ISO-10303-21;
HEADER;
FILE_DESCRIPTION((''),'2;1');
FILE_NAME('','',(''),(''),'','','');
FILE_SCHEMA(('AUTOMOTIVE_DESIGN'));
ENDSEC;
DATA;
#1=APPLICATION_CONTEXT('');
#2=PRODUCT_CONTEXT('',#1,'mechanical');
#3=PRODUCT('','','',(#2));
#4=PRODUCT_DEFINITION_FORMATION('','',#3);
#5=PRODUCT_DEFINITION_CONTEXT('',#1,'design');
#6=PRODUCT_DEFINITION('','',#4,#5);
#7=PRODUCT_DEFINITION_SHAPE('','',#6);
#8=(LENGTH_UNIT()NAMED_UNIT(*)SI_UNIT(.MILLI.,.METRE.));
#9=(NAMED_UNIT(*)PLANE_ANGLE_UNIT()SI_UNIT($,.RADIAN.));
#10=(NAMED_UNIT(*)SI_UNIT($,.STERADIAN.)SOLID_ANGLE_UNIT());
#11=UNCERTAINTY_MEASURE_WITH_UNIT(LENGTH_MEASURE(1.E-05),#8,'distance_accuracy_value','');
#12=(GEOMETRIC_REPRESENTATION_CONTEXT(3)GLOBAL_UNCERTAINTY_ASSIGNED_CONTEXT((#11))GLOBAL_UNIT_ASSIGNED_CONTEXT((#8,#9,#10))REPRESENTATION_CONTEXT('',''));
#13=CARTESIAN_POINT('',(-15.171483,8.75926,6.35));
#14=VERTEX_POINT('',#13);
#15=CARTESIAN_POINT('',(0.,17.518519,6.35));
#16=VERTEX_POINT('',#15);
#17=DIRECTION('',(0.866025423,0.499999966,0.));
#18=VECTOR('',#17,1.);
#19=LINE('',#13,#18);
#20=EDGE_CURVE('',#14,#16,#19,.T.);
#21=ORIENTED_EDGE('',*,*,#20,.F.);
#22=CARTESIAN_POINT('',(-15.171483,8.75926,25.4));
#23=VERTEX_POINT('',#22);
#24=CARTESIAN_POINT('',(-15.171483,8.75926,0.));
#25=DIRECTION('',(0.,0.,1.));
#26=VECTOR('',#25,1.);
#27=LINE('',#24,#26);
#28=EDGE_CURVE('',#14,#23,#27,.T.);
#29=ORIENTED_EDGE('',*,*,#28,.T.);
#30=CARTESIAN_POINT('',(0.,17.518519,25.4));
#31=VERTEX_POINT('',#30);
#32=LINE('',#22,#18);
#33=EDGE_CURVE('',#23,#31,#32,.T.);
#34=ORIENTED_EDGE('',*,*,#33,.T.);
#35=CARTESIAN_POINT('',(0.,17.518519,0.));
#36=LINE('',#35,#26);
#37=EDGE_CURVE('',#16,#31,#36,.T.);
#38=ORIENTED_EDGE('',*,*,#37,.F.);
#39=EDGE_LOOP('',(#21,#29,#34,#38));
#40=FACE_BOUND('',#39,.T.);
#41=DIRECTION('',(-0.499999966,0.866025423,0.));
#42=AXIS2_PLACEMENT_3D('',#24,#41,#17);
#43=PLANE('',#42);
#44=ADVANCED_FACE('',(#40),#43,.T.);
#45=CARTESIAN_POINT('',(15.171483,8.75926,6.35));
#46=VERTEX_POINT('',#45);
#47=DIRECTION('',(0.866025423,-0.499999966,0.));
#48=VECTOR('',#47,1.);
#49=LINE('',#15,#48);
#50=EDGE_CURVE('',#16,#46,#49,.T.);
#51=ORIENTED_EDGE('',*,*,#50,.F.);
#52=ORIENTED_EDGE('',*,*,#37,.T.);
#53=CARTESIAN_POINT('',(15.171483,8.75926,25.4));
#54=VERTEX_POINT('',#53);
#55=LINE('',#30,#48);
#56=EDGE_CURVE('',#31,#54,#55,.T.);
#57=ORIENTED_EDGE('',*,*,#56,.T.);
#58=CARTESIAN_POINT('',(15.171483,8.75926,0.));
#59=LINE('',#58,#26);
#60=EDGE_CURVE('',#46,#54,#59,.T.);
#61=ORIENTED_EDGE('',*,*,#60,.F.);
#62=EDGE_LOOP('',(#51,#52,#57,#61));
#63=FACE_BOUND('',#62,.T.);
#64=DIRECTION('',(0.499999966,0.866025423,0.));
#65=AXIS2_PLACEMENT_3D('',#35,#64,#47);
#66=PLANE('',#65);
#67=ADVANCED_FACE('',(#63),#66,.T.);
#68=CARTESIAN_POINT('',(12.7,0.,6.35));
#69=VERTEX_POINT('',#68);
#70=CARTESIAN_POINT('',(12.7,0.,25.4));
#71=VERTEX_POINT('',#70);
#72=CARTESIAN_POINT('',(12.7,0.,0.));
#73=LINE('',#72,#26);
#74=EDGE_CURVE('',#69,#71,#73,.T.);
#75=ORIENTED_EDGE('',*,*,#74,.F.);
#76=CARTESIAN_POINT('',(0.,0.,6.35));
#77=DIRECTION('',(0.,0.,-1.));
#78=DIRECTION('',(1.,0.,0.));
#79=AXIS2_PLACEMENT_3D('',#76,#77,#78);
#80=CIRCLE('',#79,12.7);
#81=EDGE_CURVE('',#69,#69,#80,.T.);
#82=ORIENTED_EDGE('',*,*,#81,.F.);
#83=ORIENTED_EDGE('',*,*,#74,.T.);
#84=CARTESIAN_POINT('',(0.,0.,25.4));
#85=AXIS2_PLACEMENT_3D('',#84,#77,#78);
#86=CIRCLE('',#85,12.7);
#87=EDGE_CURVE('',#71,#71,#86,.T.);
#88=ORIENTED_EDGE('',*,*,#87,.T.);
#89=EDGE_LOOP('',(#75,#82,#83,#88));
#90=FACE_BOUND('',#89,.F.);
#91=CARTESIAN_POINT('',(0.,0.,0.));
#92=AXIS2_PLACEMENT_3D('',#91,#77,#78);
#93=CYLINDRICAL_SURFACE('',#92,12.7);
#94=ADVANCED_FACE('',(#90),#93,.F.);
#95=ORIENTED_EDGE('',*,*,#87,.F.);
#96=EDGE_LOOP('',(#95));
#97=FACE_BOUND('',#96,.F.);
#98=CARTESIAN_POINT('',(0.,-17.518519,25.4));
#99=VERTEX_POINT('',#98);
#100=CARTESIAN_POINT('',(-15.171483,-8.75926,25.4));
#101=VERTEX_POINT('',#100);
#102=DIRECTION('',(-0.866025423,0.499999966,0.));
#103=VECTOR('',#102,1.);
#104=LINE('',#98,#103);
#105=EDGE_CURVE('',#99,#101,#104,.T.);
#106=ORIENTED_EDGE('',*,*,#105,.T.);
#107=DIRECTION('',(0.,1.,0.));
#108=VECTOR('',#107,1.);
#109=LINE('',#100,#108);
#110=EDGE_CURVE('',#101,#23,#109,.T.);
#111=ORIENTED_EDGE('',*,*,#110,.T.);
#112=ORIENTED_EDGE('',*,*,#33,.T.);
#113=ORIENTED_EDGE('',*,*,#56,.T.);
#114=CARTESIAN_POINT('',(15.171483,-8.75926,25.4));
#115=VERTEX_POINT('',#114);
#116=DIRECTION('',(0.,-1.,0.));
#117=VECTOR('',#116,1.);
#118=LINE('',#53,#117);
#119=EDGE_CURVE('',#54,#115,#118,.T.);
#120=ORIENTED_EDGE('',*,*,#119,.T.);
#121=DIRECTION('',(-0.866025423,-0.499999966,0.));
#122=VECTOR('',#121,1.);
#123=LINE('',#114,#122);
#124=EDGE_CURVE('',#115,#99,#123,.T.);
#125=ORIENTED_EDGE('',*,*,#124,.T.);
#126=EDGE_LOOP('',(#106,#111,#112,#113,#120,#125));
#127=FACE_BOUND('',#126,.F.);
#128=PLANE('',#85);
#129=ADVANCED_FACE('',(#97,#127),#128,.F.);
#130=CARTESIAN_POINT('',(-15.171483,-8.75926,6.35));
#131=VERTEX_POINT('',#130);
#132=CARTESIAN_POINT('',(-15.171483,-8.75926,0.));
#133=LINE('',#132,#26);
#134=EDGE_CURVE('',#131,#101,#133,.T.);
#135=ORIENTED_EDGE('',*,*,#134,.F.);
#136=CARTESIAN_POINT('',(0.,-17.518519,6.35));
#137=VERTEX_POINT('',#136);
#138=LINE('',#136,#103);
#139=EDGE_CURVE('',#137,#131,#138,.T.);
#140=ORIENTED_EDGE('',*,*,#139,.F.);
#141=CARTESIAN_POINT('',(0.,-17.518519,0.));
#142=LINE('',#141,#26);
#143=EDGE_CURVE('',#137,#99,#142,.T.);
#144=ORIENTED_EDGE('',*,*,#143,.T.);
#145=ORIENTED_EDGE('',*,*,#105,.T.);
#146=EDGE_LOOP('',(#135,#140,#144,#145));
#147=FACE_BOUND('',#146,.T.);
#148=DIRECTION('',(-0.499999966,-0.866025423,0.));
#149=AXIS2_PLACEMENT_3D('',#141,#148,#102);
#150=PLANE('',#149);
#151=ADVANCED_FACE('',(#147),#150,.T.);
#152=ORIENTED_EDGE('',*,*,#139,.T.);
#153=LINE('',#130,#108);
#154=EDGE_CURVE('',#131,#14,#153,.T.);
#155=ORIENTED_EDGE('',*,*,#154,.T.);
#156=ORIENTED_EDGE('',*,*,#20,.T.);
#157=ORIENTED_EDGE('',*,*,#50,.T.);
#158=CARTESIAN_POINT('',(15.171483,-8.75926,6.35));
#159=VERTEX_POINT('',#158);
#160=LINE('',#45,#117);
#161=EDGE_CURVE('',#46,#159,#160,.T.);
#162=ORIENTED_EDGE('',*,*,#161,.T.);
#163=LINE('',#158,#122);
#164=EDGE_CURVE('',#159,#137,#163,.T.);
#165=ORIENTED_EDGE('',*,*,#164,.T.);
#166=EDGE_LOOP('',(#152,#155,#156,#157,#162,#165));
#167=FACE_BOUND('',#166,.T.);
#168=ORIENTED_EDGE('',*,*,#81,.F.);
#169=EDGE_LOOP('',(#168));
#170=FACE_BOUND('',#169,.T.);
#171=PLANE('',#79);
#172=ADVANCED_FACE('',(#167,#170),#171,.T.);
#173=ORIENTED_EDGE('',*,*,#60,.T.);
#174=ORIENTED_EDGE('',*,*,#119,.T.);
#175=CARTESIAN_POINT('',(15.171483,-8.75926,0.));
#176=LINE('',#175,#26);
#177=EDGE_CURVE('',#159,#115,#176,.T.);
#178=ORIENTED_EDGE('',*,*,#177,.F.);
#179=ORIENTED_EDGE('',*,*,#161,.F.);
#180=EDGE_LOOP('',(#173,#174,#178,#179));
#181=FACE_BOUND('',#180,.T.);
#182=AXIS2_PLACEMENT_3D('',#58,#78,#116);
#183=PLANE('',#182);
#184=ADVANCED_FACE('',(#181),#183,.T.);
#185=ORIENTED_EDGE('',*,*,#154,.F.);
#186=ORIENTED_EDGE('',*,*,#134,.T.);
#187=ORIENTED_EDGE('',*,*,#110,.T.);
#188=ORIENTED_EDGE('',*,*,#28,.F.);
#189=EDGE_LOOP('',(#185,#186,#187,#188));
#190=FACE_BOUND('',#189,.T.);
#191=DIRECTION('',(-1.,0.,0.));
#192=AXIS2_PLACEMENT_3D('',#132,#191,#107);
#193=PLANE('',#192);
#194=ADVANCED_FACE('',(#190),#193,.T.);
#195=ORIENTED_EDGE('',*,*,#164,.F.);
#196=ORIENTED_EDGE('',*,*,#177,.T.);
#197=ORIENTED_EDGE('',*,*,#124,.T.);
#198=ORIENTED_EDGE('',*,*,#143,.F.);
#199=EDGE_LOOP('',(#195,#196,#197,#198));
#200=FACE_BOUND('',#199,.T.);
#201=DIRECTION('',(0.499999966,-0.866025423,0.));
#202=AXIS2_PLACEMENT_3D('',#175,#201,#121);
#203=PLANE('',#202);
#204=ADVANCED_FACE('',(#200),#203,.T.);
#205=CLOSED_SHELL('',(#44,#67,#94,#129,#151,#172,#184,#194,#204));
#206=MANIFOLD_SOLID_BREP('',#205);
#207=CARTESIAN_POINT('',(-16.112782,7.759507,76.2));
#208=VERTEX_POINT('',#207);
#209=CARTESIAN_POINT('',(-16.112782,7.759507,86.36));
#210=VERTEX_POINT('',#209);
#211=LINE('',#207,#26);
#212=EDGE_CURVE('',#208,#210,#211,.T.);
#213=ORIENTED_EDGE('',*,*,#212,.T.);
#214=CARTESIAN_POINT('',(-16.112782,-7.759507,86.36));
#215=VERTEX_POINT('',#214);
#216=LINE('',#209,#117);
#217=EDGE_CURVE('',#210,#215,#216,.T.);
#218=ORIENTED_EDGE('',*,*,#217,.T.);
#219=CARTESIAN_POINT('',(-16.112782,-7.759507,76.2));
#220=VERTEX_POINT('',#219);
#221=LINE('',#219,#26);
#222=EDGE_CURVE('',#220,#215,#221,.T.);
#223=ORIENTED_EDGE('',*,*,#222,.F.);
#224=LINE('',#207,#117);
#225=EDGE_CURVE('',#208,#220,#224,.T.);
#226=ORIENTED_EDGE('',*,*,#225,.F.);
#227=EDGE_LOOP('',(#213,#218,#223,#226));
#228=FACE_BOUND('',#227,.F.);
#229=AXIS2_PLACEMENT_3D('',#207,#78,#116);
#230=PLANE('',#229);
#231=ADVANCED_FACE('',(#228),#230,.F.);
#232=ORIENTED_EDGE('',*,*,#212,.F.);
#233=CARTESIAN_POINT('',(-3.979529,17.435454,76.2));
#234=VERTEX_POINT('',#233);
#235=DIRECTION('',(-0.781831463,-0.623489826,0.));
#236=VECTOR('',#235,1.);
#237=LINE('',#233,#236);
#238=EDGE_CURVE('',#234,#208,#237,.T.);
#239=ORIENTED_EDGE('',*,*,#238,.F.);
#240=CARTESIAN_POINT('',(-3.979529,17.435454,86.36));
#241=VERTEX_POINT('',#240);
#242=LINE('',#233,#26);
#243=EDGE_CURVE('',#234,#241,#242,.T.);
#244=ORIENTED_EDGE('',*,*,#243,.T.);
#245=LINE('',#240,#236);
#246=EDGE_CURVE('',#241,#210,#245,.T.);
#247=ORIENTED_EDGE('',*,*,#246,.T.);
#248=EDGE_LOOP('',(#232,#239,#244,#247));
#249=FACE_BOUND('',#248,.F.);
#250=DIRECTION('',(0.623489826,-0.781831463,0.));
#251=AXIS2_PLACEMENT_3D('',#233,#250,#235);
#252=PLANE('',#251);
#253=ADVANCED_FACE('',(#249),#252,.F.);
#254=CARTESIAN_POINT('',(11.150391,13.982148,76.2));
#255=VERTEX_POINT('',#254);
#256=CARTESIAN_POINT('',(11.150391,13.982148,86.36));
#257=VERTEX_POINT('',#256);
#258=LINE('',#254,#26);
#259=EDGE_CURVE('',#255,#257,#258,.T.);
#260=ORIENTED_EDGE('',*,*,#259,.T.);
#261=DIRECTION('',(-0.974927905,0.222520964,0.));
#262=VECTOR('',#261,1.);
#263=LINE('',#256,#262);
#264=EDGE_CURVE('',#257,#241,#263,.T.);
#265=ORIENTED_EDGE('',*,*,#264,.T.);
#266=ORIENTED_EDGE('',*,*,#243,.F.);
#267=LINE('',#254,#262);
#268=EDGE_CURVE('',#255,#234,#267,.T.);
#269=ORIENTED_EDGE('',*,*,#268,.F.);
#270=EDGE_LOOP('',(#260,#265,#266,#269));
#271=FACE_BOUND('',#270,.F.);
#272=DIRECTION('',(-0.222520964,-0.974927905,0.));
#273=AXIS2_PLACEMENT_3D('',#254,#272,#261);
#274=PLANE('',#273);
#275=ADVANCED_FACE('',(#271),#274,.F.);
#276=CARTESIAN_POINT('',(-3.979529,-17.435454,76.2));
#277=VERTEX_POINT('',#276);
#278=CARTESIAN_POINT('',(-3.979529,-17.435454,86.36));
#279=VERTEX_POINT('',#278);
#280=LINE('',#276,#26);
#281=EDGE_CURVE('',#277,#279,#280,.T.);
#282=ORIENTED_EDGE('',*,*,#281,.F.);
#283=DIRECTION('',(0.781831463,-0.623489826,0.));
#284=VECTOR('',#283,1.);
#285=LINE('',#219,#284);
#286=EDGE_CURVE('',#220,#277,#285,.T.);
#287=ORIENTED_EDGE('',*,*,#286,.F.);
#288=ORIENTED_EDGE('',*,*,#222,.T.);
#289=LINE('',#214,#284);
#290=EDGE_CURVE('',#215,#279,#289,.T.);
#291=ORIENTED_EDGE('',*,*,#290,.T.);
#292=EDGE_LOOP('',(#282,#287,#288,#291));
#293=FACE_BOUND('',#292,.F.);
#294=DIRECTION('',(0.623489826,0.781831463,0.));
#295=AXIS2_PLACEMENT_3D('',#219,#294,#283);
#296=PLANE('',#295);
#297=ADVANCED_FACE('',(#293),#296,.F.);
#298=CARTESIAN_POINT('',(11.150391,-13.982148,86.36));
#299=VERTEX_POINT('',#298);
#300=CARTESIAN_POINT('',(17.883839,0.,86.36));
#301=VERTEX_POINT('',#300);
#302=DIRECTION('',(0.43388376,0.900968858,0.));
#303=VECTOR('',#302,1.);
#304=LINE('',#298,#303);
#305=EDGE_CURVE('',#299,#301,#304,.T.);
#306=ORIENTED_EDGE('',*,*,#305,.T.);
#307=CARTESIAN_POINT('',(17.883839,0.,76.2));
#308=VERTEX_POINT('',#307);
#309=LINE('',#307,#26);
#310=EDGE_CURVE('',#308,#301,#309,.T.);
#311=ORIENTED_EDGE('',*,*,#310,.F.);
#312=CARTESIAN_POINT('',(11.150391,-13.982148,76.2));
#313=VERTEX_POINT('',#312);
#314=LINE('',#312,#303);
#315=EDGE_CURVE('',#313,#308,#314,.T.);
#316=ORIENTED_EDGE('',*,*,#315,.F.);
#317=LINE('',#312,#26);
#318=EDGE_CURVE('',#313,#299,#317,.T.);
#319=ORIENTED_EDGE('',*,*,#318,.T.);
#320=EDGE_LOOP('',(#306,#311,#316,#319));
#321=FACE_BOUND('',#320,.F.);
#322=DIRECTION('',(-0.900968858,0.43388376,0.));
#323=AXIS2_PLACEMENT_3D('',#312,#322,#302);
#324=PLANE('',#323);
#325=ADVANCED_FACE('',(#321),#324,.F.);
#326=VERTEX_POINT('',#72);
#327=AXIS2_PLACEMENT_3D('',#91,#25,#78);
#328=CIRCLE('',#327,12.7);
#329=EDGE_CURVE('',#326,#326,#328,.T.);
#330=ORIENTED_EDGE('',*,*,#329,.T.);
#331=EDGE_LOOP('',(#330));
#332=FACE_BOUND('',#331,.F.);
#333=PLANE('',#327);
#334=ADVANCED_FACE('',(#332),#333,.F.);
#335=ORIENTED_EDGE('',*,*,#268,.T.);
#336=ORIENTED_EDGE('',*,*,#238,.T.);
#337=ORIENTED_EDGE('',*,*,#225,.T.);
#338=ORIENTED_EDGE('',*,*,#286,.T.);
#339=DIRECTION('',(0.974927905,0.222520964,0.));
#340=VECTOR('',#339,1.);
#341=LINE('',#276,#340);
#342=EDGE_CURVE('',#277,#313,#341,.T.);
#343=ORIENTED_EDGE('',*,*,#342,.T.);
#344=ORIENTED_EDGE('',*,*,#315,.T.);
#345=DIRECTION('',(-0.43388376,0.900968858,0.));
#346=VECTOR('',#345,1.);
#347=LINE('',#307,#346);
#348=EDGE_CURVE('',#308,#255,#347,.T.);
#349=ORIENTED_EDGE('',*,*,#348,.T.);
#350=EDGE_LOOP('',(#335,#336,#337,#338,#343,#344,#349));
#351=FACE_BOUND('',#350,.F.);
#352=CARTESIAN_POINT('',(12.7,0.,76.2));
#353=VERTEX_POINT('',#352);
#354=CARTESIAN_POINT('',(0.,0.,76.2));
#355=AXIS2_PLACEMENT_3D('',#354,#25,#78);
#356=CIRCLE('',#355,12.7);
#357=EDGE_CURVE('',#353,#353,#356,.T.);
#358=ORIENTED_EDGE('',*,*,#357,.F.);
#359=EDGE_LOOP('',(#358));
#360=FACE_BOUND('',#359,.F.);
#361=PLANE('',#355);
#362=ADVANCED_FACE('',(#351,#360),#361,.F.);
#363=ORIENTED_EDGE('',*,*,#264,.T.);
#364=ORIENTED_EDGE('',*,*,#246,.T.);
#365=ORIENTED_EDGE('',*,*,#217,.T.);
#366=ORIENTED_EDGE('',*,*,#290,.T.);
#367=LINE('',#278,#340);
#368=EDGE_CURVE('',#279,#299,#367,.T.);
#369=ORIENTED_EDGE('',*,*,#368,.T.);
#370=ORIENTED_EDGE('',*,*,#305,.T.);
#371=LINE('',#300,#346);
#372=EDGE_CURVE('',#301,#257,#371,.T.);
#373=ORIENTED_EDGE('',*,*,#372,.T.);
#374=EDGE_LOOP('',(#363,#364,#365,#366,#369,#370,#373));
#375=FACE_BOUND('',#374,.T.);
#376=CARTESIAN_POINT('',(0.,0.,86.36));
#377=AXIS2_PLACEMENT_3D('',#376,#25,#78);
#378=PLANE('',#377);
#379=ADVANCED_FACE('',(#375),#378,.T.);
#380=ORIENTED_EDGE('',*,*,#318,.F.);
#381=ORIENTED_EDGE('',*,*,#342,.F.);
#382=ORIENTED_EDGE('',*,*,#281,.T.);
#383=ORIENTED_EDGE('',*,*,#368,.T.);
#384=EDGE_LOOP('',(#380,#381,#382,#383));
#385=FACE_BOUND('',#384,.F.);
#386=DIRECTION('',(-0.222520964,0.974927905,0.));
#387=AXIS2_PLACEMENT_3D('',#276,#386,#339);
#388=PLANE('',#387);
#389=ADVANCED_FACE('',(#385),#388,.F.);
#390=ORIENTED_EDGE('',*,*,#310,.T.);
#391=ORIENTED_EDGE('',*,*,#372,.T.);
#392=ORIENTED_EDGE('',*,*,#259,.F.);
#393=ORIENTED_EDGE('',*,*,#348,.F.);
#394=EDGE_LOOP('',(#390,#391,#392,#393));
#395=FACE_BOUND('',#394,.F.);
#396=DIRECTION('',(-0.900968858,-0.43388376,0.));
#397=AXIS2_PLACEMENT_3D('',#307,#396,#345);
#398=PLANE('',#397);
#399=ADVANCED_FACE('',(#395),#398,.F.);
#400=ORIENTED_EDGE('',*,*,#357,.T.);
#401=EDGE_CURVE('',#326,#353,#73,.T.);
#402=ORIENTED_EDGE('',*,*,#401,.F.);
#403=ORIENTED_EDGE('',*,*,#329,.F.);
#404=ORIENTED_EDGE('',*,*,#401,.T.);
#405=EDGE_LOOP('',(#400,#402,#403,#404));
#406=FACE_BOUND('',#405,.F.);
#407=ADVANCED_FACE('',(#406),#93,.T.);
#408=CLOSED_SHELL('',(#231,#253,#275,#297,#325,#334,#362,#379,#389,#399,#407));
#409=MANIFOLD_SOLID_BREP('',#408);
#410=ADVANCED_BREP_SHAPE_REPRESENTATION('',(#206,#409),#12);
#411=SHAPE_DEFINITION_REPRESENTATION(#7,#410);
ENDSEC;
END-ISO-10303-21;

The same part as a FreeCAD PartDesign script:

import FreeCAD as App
import Part
import Sketcher
from FreeCAD import Vector
Q = App.Units.Quantity

doc = App.newDocument("Part")
body = doc.addObject("PartDesign::Body", "Body")

sketch1 = doc.addObject("Sketcher::SketchObject", "Sketch")
body.addObject(sketch1)
sketch1.AttachmentSupport = (doc.XY_Plane, [""])
sketch1.MapMode = "FlatFace"
sketch1.addGeometry(Part.Circle(Vector(0, 0, 0), Vector(0, 0, 1), 13), False)
sketch1.addConstraint([
    Sketcher.Constraint("Coincident", 0, 3, -1, 1),
    Sketcher.Constraint("Diameter", 0, Q("1 in")),
])
pad1 = doc.addObject("PartDesign::Pad", "Pad")
body.addObject(pad1)
pad1.Profile = sketch1
pad1.Length = Q("3 in")

sketch2 = doc.addObject("Sketcher::SketchObject", "Sketch001")
body.addObject(sketch2)
sketch2.AttachmentSupport = (doc.XY_Plane, [""])
sketch2.MapMode = "FlatFace"
sketch2.AttachmentOffset = App.Placement(Vector(0, 0, 3 * 25.4), App.Rotation())
sketch2.addGeometry([
    Part.LineSegment(Vector(-16, 8, 0), Vector(-16, -8, 0)),
    Part.LineSegment(Vector(-16, -8, 0), Vector(-4, -17, 0)),
    Part.LineSegment(Vector(-4, -17, 0), Vector(11, -14, 0)),
    Part.LineSegment(Vector(11, -14, 0), Vector(18, 0, 0)),
    Part.LineSegment(Vector(18, 0, 0), Vector(11, 14, 0)),
    Part.LineSegment(Vector(11, 14, 0), Vector(-4, 17, 0)),
    Part.LineSegment(Vector(-4, 17, 0), Vector(-16, 8, 0)),
], False)
sketch2.addConstraint([
    Sketcher.Constraint("Coincident", 0, 2, 1, 1),
    Sketcher.Constraint("Coincident", 1, 2, 2, 1),
    Sketcher.Constraint("Coincident", 2, 2, 3, 1),
    Sketcher.Constraint("Coincident", 3, 2, 4, 1),
    Sketcher.Constraint("Coincident", 4, 2, 5, 1),
    Sketcher.Constraint("Coincident", 5, 2, 6, 1),
    Sketcher.Constraint("Coincident", 6, 2, 0, 1),
    Sketcher.Constraint("Vertical", 0),
    Sketcher.Constraint("Symmetric", 2, 2, 4, 2, -1),
    Sketcher.Constraint("Symmetric", 1, 2, 5, 2, -1),
    Sketcher.Constraint("PointOnObject", 3, 2, -1),
    Sketcher.Constraint("Equal", 1, 2),
    Sketcher.Constraint("Equal", 2, 3),
    Sketcher.Constraint("Equal", 5, 6),
    Sketcher.Constraint("DistanceY", 0, 2, 0, 1, Q("15.519014 mm")),
    Sketcher.Constraint("DistanceX", 0, 2, -1, 1, Q("16.112782 mm")),
    Sketcher.Constraint("DistanceX", 1, 2, -1, 1, Q("3.979529 mm")),
    Sketcher.Constraint("DistanceX", -1, 1, 2, 2, Q("11.150391 mm")),
    Sketcher.Constraint("DistanceX", -1, 1, 3, 2, Q("17.883839 mm")),
])
pad2 = doc.addObject("PartDesign::Pad", "Pad001")
body.addObject(pad2)
pad2.Profile = sketch2
pad2.Length = Q("0.4 in")
body2 = doc.addObject("PartDesign::Body", "Body001")

sketch3 = doc.addObject("Sketcher::SketchObject", "Sketch002")
body2.addObject(sketch3)
sketch3.AttachmentSupport = (doc.getObject("XY_Plane001"), [""])
sketch3.MapMode = "FlatFace"
sketch3.addGeometry([
    Part.LineSegment(Vector(-15, -9, 0), Vector(-15, 9, 0)),
    Part.LineSegment(Vector(-15, 9, 0), Vector(0, 18, 0)),
    Part.LineSegment(Vector(0, 18, 0), Vector(15, 9, 0)),
    Part.LineSegment(Vector(15, 9, 0), Vector(15, -9, 0)),
    Part.LineSegment(Vector(15, -9, 0), Vector(0, -18, 0)),
    Part.LineSegment(Vector(0, -18, 0), Vector(-15, -9, 0)),
    Part.Circle(Vector(0, 0, 0), Vector(0, 0, 1), 13),
], False)
sketch3.addConstraint([
    Sketcher.Constraint("Coincident", 0, 2, 1, 1),
    Sketcher.Constraint("Coincident", 1, 2, 2, 1),
    Sketcher.Constraint("Coincident", 2, 2, 3, 1),
    Sketcher.Constraint("Coincident", 3, 2, 4, 1),
    Sketcher.Constraint("Coincident", 4, 2, 5, 1),
    Sketcher.Constraint("Coincident", 5, 2, 0, 1),
    Sketcher.Constraint("Vertical", 0),
    Sketcher.Constraint("Vertical", 3),
    Sketcher.Constraint("Coincident", 6, 3, -1, 1),
    Sketcher.Constraint("Symmetric", 0, 2, 3, 2, -1, 1),
    Sketcher.Constraint("Symmetric", 1, 2, 4, 2, -1, 1),
    Sketcher.Constraint("PointOnObject", 1, 2, -2),
    Sketcher.Constraint("Parallel", 2, 5),
    Sketcher.Constraint("Horizontal", 0, 2, 2, 2),
    Sketcher.Constraint("Diameter", 6, Q("1 in")),
    Sketcher.Constraint("Angle", 1, Q("29.999998 deg")),
    Sketcher.Constraint("DistanceY", 0, 1, 0, 2, Q("17.51852 mm")),
    Sketcher.Constraint("Distance", 1, Q("17.518519 mm")),
])
pad3 = doc.addObject("PartDesign::Pad", "Pad002")
body2.addObject(pad3)
pad3.Profile = sketch3
pad3.Length = Q("1 in")

sketch4 = doc.addObject("Sketcher::SketchObject", "Sketch003")
body2.addObject(sketch4)
sketch4.AttachmentSupport = (doc.getObject("XY_Plane001"), [""])
sketch4.MapMode = "FlatFace"
sketch4.addGeometry([
    Part.LineSegment(Vector(-15, -9, 0), Vector(-15, 9, 0)),
    Part.LineSegment(Vector(-15, 9, 0), Vector(0, 18, 0)),
    Part.LineSegment(Vector(0, 18, 0), Vector(15, 9, 0)),
    Part.LineSegment(Vector(15, 9, 0), Vector(15, -9, 0)),
    Part.LineSegment(Vector(15, -9, 0), Vector(0, -18, 0)),
    Part.LineSegment(Vector(0, -18, 0), Vector(-15, -9, 0)),
    Part.Circle(Vector(0, 0, 0), Vector(0, 0, 1), 13),
], False)
sketch4.addConstraint([
    Sketcher.Constraint("Coincident", 0, 2, 1, 1),
    Sketcher.Constraint("Coincident", 1, 2, 2, 1),
    Sketcher.Constraint("Coincident", 2, 2, 3, 1),
    Sketcher.Constraint("Coincident", 3, 2, 4, 1),
    Sketcher.Constraint("Coincident", 4, 2, 5, 1),
    Sketcher.Constraint("Coincident", 5, 2, 0, 1),
    Sketcher.Constraint("Vertical", 0),
    Sketcher.Constraint("Vertical", 3),
    Sketcher.Constraint("Coincident", 6, 3, -1, 1),
    Sketcher.Constraint("Symmetric", 0, 2, 3, 2, -1, 1),
    Sketcher.Constraint("Symmetric", 1, 2, 4, 2, -1, 1),
    Sketcher.Constraint("PointOnObject", 1, 2, -2),
    Sketcher.Constraint("Parallel", 2, 5),
    Sketcher.Constraint("Horizontal", 0, 2, 2, 2),
    Sketcher.Constraint("Diameter", 6, Q("1 in")),
    Sketcher.Constraint("Angle", 1, Q("29.999998 deg")),
    Sketcher.Constraint("DistanceY", 0, 1, 0, 2, Q("17.51852 mm")),
    Sketcher.Constraint("Distance", 1, Q("17.518519 mm")),
])
pocket1 = doc.addObject("PartDesign::Pocket", "Pocket")
body2.addObject(pocket1)
pocket1.Profile = sketch4
pocket1.Length = Q("0.25 in")
pocket1.Reversed = True

doc.recompute()
